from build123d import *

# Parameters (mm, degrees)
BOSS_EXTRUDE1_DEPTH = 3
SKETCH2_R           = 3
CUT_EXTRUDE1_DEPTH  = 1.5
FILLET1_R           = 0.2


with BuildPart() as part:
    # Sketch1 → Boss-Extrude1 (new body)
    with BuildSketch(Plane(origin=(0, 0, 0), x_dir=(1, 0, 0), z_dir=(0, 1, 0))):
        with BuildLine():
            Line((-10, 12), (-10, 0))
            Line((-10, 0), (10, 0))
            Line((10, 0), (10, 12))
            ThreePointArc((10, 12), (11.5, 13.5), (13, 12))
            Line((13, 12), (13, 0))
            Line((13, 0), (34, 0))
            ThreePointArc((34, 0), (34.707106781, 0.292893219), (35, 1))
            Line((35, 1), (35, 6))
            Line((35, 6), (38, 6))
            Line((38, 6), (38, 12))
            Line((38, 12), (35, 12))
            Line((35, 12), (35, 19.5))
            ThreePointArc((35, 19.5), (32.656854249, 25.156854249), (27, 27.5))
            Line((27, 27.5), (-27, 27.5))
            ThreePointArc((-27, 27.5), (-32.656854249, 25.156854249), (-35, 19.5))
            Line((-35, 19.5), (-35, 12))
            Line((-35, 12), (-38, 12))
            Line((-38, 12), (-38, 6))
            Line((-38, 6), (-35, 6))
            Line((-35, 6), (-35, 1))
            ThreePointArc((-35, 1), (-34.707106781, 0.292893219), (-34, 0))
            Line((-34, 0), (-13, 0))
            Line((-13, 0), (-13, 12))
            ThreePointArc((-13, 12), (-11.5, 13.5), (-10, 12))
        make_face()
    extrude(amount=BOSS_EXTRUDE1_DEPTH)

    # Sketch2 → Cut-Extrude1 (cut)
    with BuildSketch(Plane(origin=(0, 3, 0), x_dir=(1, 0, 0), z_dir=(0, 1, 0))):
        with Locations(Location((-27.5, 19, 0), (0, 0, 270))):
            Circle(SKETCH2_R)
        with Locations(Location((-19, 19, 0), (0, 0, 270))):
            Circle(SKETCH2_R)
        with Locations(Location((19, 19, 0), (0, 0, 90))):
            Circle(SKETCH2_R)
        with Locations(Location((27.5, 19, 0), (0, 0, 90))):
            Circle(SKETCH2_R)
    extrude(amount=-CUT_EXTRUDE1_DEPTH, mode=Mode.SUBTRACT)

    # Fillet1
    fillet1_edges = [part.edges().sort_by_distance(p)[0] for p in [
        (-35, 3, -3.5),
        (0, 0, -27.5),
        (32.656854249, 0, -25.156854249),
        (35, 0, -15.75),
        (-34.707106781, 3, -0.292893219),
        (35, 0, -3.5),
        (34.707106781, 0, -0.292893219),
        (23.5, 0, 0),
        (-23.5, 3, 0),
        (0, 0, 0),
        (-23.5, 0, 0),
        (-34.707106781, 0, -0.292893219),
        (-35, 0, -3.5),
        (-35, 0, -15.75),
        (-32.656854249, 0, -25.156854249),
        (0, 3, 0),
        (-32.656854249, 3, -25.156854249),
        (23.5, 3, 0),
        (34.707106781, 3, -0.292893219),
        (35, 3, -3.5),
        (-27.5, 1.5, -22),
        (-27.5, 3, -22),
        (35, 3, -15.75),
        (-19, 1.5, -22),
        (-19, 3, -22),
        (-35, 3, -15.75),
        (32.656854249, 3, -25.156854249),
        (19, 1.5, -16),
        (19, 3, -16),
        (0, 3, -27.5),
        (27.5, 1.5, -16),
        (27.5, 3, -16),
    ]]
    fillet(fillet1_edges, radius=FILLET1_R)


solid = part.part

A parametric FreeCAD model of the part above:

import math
import FreeCAD as App
import Part
import Sketcher

V = App.Vector
Q = App.Units.Quantity


def edges_at(feature, points):
    """Names of the edges that pass closest to the given points."""
    edges = feature.Shape.Edges
    near = lambda p: min(range(len(edges)), key=lambda i: edges[i].distToShape(Part.Vertex(*p))[0])
    return sorted({f"Edge{near(p) + 1}" for p in points})

doc = App.newDocument("Part")
body = doc.addObject("PartDesign::Body", "Body")

# Sketch on XZ plane
sketch1 = doc.addObject("Sketcher::SketchObject", "Sketch")
body.addObject(sketch1)
sketch1.AttachmentSupport = (doc.XZ_Plane, [""])
sketch1.MapMode = "FlatFace"
sketch1.addGeometry([
    Part.LineSegment(V(-10, -12, 0), V(-10, 0, 0)),  # 0
    Part.LineSegment(V(-10, 0, 0), V(10, 0, 0)),  # 1
    Part.LineSegment(V(10, 0, 0), V(10, -12, 0)),  # 2
    Part.ArcOfCircle(Part.Circle(V(11.5, -12, 0), V(0, 0, 1), 1.5), math.radians(180), math.radians(360)),  # 3
    Part.LineSegment(V(13, -12, 0), V(13, 0, 0)),  # 4
    Part.LineSegment(V(13, 0, 0), V(34, 0, 0)),  # 5
    Part.ArcOfCircle(Part.Circle(V(34, -1, 0), V(0, 0, 1), 1), math.radians(0), math.radians(90)),  # 6
    Part.LineSegment(V(35, -1, 0), V(35, -6, 0)),  # 7
    Part.LineSegment(V(35, -6, 0), V(38, -6, 0)),  # 8
    Part.LineSegment(V(38, -6, 0), V(38, -12, 0)),  # 9
    Part.LineSegment(V(38, -12, 0), V(35, -12, 0)),  # 10
    Part.LineSegment(V(35, -12, 0), V(35, -19.5, 0)),  # 11
    Part.ArcOfCircle(Part.Circle(V(27, -19.5, 0), V(0, 0, 1), 8), math.radians(-90), math.radians(0)),  # 12
    Part.LineSegment(V(27, -27.5, 0), V(-27, -27.5, 0)),  # 13
    Part.ArcOfCircle(Part.Circle(V(-27, -19.5, 0), V(0, 0, 1), 8), math.radians(-180), math.radians(-90)),  # 14
    Part.LineSegment(V(-35, -19.5, 0), V(-35, -12, 0)),  # 15
    Part.LineSegment(V(-35, -12, 0), V(-38, -12, 0)),  # 16
    Part.LineSegment(V(-38, -12, 0), V(-38, -6, 0)),  # 17
    Part.LineSegment(V(-38, -6, 0), V(-35, -6, 0)),  # 18
    Part.LineSegment(V(-35, -6, 0), V(-35, -1, 0)),  # 19
    Part.ArcOfCircle(Part.Circle(V(-34, -1, 0), V(0, 0, 1), 1), math.radians(90), math.radians(180)),  # 20
    Part.LineSegment(V(-34, 0, 0), V(-13, 0, 0)),  # 21
    Part.LineSegment(V(-13, 0, 0), V(-13, -12, 0)),  # 22
    Part.ArcOfCircle(Part.Circle(V(-11.5, -12, 0), V(0, 0, 1), 1.5), math.radians(180), math.radians(360)),  # 23
], False)
sketch1.addConstraint([
    Sketcher.Constraint("Coincident", 0, 2, 1, 1),
    Sketcher.Constraint("Coincident", 1, 2, 2, 1),
    Sketcher.Constraint("Tangent", 2, 2, 3, 1),
    Sketcher.Constraint("Tangent", 3, 2, 4, 1),
    Sketcher.Constraint("Coincident", 4, 2, 5, 1),
    Sketcher.Constraint("Tangent", 5, 2, 6, 2),
    Sketcher.Constraint("Tangent", 6, 1, 7, 1),
    Sketcher.Constraint("Coincident", 7, 2, 8, 1),
    Sketcher.Constraint("Coincident", 8, 2, 9, 1),
    Sketcher.Constraint("Coincident", 9, 2, 10, 1),
    Sketcher.Constraint("Coincident", 10, 2, 11, 1),
    Sketcher.Constraint("Tangent", 11, 2, 12, 2),
    Sketcher.Constraint("Tangent", 12, 1, 13, 1),
    Sketcher.Constraint("Tangent", 13, 2, 14, 2),
    Sketcher.Constraint("Tangent", 14, 1, 15, 1),
    Sketcher.Constraint("Coincident", 15, 2, 16, 1),
    Sketcher.Constraint("Coincident", 16, 2, 17, 1),
    Sketcher.Constraint("Coincident", 17, 2, 18, 1),
    Sketcher.Constraint("Coincident", 18, 2, 19, 1),
    Sketcher.Constraint("Tangent", 19, 2, 20, 2),
    Sketcher.Constraint("Tangent", 20, 1, 21, 1),
    Sketcher.Constraint("Coincident", 21, 2, 22, 1),
    Sketcher.Constraint("Tangent", 22, 2, 23, 1),
    Sketcher.Constraint("Tangent", 23, 2, 0, 1),
    Sketcher.Constraint("Vertical", 0),
    Sketcher.Constraint("Horizontal", 1),
    Sketcher.Constraint("Vertical", 2),
    Sketcher.Constraint("Vertical", 4),
    Sketcher.Constraint("Horizontal", 5),
    Sketcher.Constraint("Vertical", 7),
    Sketcher.Constraint("Horizontal", 8),
    Sketcher.Constraint("Vertical", 9),
    Sketcher.Constraint("Horizontal", 10),
    Sketcher.Constraint("Vertical", 11),
    Sketcher.Constraint("Horizontal", 13),
    Sketcher.Constraint("Vertical", 15),
    Sketcher.Constraint("Horizontal", 16),
    Sketcher.Constraint("Vertical", 17),
    Sketcher.Constraint("Horizontal", 18),
    Sketcher.Constraint("Vertical", 19),
    Sketcher.Constraint("Horizontal", 21),
    Sketcher.Constraint("Vertical", 22),
    Sketcher.Constraint("Equal", 12, 14),
    Sketcher.Constraint("Equal", 6, 20),
    Sketcher.Constraint("Equal", 3, 23),
    Sketcher.Constraint("Symmetric", 0, 2, 1, 2, -1, 1),
    Sketcher.Constraint("Symmetric", 5, 2, 20, 1, -1, 1),
    Sketcher.Constraint("Symmetric", 10, 2, 15, 2, -2),
    Sketcher.Constraint("Symmetric", 8, 2, 17, 2, -2),
    Sketcher.Constraint("PointOnObject", 4, 2, -1),
    Sketcher.Constraint("Horizontal", 3, 3, 23, 3),
    Sketcher.Constraint("Horizontal", 3, 2, 9, 2),
    Sketcher.Constraint("Vertical", 7, 2, 10, 2),
    Sketcher.Constraint("Radius", 6, Q("1 mm")),
    Sketcher.Constraint("Radius", 12, Q("8 mm")),
    Sketcher.Constraint("Radius", 3, Q("1.5 mm")),
    Sketcher.Constraint("DistanceX", 1, 1, 1, 2, Q("20 mm")),
    Sketcher.Constraint("DistanceX", 5, 1, 5, 2, Q("21 mm")),
    Sketcher.Constraint("DistanceX", 8, 1, 8, 2, Q("3 mm")),
    Sketcher.Constraint("DistanceY", 0, 1, 0, 2, Q("12 mm")),
    Sketcher.Constraint("DistanceY", 7, 2, 7, 1, Q("5 mm")),
    Sketcher.Constraint("DistanceY", 11, 2, 11, 1, Q("7.5 mm")),
])
pad1 = doc.addObject("PartDesign::Pad", "Pad")
body.addObject(pad1)
pad1.Profile = sketch1
pad1.Length = 3
pad1.Reversed = True

# Sketch on XZ plane
sketch2 = doc.addObject("Sketcher::SketchObject", "Sketch001")
body.addObject(sketch2)
sketch2.AttachmentSupport = (doc.XZ_Plane, [""])
sketch2.MapMode = "FlatFace"
sketch2.AttachmentOffset = App.Placement(V(0, 0, -3), App.Rotation())
sketch2.addGeometry([
    Part.Circle(V(-27.5, -19, 0), V(0, 0, 1), 3),
    Part.Circle(V(-19, -19, 0), V(0, 0, 1), 3),
    Part.Circle(V(19, -19, 0), V(0, 0, 1), 3),
    Part.Circle(V(27.5, -19, 0), V(0, 0, 1), 3),
], False)
sketch2.addConstraint([
    Sketcher.Constraint("Equal", 0, 1),
    Sketcher.Constraint("Equal", 1, 2),
    Sketcher.Constraint("Equal", 2, 3),
    Sketcher.Constraint("Symmetric", 1, 3, 2, 3, -2),
    Sketcher.Constraint("Symmetric", 0, 3, 3, 3, -2),
    Sketcher.Constraint("Horizontal", 0, 3, 1, 3),
    Sketcher.Constraint("Diameter", 0, Q("6 mm")),
    Sketcher.Constraint("DistanceY", 0, 3, -1, 1, Q("19 mm")),
    Sketcher.Constraint("DistanceX", 1, 3, -1, 1, Q("19 mm")),
    Sketcher.Constraint("DistanceX", 0, 3, 3, 3, Q("55 mm")),
])
pocket1 = doc.addObject("PartDesign::Pocket", "Pocket")
body.addObject(pocket1)
pocket1.Profile = sketch2
pocket1.Length = 1.5
pocket1.Reversed = True
doc.recompute()

fillet = doc.addObject("PartDesign::Fillet", "Fillet")
body.addObject(fillet)
fillet.Base = (pocket1, edges_at(pocket1, [
    (-35, 3, -3.5),
    (0, 0, -27.5),
    (32.657, 0, -25.157),
    (35, 0, -15.75),
    (-34.707, 3, -0.293),
    (35, 0, -3.5),
    (34.707, 0, -0.293),
    (23.5, 0, 0),
    (-23.5, 3, 0),
    (0, 0, 0),
    (-23.5, 0, 0),
    (-34.707, 0, -0.293),
    (-35, 0, -3.5),
    (-35, 0, -15.75),
    (-32.657, 0, -25.157),
    (0, 3, 0),
    (-32.657, 3, -25.157),
    (23.5, 3, 0),
    (34.707, 3, -0.293),
    (35, 3, -3.5),
    (-27.5, 1.5, -22),
    (-27.5, 3, -22),
    (35, 3, -15.75),
    (-19, 1.5, -22),
    (-19, 3, -22),
    (-35, 3, -15.75),
    (32.657, 3, -25.157),
    (19, 1.5, -16),
    (19, 3, -16),
    (0, 3, -27.5),
    (27.5, 1.5, -16),
    (27.5, 3, -16),
]))
fillet.Radius = 0.2

doc.recompute()
